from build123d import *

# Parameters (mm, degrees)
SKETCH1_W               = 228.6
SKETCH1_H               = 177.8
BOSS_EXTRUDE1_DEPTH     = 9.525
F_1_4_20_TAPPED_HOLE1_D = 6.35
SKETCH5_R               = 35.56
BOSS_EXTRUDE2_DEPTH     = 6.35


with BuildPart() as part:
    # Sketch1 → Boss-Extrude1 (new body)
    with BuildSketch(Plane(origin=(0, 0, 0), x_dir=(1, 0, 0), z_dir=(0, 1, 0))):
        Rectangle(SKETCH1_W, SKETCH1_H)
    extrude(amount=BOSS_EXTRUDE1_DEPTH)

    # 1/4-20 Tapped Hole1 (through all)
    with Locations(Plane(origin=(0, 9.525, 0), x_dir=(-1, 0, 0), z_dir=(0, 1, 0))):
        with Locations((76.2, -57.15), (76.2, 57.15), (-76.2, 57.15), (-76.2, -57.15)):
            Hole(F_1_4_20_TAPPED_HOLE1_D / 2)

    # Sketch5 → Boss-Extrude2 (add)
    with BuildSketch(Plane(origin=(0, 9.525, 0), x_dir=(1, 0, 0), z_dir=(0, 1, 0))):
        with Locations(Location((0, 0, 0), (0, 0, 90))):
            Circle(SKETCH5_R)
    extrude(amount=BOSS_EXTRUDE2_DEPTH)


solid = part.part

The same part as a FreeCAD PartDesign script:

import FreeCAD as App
import Part
import Sketcher
from FreeCAD import Vector
Q = App.Units.Quantity


def add_polygon(sketch, points):
    """Adds a closed chain of lines whose ends are joined by coincident constraints."""
    first, n = sketch.GeometryCount, len(points)
    for a, b in zip(points, points[1:] + points[:1]):
        sketch.addGeometry(Part.LineSegment(App.Vector(*a, 0), App.Vector(*b, 0)), False)
    for i in range(n):
        sketch.addConstraint(Sketcher.Constraint("Coincident", first + i, 2, first + (i + 1) % n, 1))

doc = App.newDocument("Part")
params = doc.addObject("Spreadsheet::Sheet", "Params")
for row, (alias, value) in enumerate([
    ("sketch1_width", "9 in"),
    ("sketch1_height", "7 in"),
    ("pad1_length", "0.375 in"),
    ("sketch2_diameter", "0.25 in"),
    ("hole_diameter", "0.25 in"),
    ("sketch3_diameter", "2.8 in"),
    ("pad2_length", "0.25 in"),
], start=1):
    params.set(f"A{row}", alias)
    params.set(f"B{row}", "=" + value)
    params.setAlias(f"B{row}", alias)

body = doc.addObject("PartDesign::Body", "Body")

# Sketch on XZ plane
sketch1 = body.newObject("Sketcher::SketchObject", "Sketch")
sketch1.AttachmentSupport = (doc.getObject("XZ_Plane"), [""])
sketch1.MapMode = "FlatFace"
add_polygon(sketch1, [(-114.3, -88.9), (-114.3, 88.9), (114.3, 88.9), (114.3, -88.9)])  # lines 0-3
sketch1.addConstraint(Sketcher.Constraint("Vertical", 0))
sketch1.addConstraint(Sketcher.Constraint("Horizontal", 1))
sketch1.addConstraint(Sketcher.Constraint("Vertical", 2))
sketch1.addConstraint(Sketcher.Constraint("Horizontal", 3))
sketch1.addConstraint(Sketcher.Constraint("Symmetric", 0, 2, 2, 2, -1, 1))
sketch1.addConstraint(Sketcher.Constraint("DistanceX", 1, 1, 1, 2, Q("9 in")))
sketch1.addConstraint(Sketcher.Constraint("DistanceY", 0, 1, 0, 2, Q("7 in")))
sketch1.setExpression("Constraints[9]", "Params.sketch1_width")
sketch1.setExpression("Constraints[10]", "Params.sketch1_height")
pad1 = body.newObject("PartDesign::Pad", "Pad")
pad1.Profile = sketch1
pad1.setExpression("Length", "Params.pad1_length")
pad1.Reversed = True

# Sketch on XZ plane
sketch2 = body.newObject("Sketcher::SketchObject", "Sketch001")
sketch2.AttachmentSupport = (doc.getObject("XZ_Plane"), [""])
sketch2.MapMode = "FlatFace"
sketch2.AttachmentOffset = App.Placement(Vector(0, 0, -0.375 * 25.4), App.Rotation())
sketch2.addGeometry(Part.Circle(Vector(-76.2, -57.15, 0), Vector(0, 0, 1), 3.175), False)
sketch2.addGeometry(Part.Circle(Vector(-76.2, 57.15, 0), Vector(0, 0, 1), 3.175), False)
sketch2.addGeometry(Part.Circle(Vector(76.2, 57.15, 0), Vector(0, 0, 1), 3.175), False)
sketch2.addGeometry(Part.Circle(Vector(76.2, -57.15, 0), Vector(0, 0, 1), 3.175), False)
sketch2.addConstraint(Sketcher.Constraint("Equal", 0, 1))
sketch2.addConstraint(Sketcher.Constraint("Equal", 1, 2))
sketch2.addConstraint(Sketcher.Constraint("Equal", 2, 3))
sketch2.addConstraint(Sketcher.Constraint("Symmetric", 0, 3, 2, 3, -1, 1))
sketch2.addConstraint(Sketcher.Constraint("Symmetric", 1, 3, 3, 3, -1, 1))
sketch2.addConstraint(Sketcher.Constraint("Symmetric", 1, 3, 2, 3, -2))
sketch2.addConstraint(Sketcher.Constraint("Diameter", 0, Q("0.25 in")))
sketch2.addConstraint(Sketcher.Constraint("DistanceX", 0, 3, -1, 1, Q("3 in")))
sketch2.addConstraint(Sketcher.Constraint("DistanceY", 0, 3, 1, 3, Q("4.5 in")))
sketch2.setExpression("Constraints[6]", "Params.sketch2_diameter")
doc.recompute()
hole = body.newObject("PartDesign::Hole", "Hole")
hole.Profile = sketch2
hole.ThreadType = "None"
hole.setExpression("Diameter", "Params.hole_diameter")
hole.DepthType = "ThroughAll"
hole.Reversed = True

# Sketch on XZ plane
sketch3 = body.newObject("Sketcher::SketchObject", "Sketch002")
sketch3.AttachmentSupport = (doc.getObject("XZ_Plane"), [""])
sketch3.MapMode = "FlatFace"
sketch3.AttachmentOffset = App.Placement(Vector(0, 0, -0.375 * 25.4), App.Rotation())
sketch3.addGeometry(Part.Circle(Vector(0, 0, 0), Vector(0, 0, 1), 35.56), False)
sketch3.addConstraint(Sketcher.Constraint("Coincident", 0, 3, -1, 1))
sketch3.addConstraint(Sketcher.Constraint("Diameter", 0, Q("2.8 in")))
sketch3.setExpression("Constraints[1]", "Params.sketch3_diameter")
pad2 = body.newObject("PartDesign::Pad", "Pad001")
pad2.Profile = sketch3
pad2.setExpression("Length", "Params.pad2_length")
pad2.Reversed = True

doc.recompute()
